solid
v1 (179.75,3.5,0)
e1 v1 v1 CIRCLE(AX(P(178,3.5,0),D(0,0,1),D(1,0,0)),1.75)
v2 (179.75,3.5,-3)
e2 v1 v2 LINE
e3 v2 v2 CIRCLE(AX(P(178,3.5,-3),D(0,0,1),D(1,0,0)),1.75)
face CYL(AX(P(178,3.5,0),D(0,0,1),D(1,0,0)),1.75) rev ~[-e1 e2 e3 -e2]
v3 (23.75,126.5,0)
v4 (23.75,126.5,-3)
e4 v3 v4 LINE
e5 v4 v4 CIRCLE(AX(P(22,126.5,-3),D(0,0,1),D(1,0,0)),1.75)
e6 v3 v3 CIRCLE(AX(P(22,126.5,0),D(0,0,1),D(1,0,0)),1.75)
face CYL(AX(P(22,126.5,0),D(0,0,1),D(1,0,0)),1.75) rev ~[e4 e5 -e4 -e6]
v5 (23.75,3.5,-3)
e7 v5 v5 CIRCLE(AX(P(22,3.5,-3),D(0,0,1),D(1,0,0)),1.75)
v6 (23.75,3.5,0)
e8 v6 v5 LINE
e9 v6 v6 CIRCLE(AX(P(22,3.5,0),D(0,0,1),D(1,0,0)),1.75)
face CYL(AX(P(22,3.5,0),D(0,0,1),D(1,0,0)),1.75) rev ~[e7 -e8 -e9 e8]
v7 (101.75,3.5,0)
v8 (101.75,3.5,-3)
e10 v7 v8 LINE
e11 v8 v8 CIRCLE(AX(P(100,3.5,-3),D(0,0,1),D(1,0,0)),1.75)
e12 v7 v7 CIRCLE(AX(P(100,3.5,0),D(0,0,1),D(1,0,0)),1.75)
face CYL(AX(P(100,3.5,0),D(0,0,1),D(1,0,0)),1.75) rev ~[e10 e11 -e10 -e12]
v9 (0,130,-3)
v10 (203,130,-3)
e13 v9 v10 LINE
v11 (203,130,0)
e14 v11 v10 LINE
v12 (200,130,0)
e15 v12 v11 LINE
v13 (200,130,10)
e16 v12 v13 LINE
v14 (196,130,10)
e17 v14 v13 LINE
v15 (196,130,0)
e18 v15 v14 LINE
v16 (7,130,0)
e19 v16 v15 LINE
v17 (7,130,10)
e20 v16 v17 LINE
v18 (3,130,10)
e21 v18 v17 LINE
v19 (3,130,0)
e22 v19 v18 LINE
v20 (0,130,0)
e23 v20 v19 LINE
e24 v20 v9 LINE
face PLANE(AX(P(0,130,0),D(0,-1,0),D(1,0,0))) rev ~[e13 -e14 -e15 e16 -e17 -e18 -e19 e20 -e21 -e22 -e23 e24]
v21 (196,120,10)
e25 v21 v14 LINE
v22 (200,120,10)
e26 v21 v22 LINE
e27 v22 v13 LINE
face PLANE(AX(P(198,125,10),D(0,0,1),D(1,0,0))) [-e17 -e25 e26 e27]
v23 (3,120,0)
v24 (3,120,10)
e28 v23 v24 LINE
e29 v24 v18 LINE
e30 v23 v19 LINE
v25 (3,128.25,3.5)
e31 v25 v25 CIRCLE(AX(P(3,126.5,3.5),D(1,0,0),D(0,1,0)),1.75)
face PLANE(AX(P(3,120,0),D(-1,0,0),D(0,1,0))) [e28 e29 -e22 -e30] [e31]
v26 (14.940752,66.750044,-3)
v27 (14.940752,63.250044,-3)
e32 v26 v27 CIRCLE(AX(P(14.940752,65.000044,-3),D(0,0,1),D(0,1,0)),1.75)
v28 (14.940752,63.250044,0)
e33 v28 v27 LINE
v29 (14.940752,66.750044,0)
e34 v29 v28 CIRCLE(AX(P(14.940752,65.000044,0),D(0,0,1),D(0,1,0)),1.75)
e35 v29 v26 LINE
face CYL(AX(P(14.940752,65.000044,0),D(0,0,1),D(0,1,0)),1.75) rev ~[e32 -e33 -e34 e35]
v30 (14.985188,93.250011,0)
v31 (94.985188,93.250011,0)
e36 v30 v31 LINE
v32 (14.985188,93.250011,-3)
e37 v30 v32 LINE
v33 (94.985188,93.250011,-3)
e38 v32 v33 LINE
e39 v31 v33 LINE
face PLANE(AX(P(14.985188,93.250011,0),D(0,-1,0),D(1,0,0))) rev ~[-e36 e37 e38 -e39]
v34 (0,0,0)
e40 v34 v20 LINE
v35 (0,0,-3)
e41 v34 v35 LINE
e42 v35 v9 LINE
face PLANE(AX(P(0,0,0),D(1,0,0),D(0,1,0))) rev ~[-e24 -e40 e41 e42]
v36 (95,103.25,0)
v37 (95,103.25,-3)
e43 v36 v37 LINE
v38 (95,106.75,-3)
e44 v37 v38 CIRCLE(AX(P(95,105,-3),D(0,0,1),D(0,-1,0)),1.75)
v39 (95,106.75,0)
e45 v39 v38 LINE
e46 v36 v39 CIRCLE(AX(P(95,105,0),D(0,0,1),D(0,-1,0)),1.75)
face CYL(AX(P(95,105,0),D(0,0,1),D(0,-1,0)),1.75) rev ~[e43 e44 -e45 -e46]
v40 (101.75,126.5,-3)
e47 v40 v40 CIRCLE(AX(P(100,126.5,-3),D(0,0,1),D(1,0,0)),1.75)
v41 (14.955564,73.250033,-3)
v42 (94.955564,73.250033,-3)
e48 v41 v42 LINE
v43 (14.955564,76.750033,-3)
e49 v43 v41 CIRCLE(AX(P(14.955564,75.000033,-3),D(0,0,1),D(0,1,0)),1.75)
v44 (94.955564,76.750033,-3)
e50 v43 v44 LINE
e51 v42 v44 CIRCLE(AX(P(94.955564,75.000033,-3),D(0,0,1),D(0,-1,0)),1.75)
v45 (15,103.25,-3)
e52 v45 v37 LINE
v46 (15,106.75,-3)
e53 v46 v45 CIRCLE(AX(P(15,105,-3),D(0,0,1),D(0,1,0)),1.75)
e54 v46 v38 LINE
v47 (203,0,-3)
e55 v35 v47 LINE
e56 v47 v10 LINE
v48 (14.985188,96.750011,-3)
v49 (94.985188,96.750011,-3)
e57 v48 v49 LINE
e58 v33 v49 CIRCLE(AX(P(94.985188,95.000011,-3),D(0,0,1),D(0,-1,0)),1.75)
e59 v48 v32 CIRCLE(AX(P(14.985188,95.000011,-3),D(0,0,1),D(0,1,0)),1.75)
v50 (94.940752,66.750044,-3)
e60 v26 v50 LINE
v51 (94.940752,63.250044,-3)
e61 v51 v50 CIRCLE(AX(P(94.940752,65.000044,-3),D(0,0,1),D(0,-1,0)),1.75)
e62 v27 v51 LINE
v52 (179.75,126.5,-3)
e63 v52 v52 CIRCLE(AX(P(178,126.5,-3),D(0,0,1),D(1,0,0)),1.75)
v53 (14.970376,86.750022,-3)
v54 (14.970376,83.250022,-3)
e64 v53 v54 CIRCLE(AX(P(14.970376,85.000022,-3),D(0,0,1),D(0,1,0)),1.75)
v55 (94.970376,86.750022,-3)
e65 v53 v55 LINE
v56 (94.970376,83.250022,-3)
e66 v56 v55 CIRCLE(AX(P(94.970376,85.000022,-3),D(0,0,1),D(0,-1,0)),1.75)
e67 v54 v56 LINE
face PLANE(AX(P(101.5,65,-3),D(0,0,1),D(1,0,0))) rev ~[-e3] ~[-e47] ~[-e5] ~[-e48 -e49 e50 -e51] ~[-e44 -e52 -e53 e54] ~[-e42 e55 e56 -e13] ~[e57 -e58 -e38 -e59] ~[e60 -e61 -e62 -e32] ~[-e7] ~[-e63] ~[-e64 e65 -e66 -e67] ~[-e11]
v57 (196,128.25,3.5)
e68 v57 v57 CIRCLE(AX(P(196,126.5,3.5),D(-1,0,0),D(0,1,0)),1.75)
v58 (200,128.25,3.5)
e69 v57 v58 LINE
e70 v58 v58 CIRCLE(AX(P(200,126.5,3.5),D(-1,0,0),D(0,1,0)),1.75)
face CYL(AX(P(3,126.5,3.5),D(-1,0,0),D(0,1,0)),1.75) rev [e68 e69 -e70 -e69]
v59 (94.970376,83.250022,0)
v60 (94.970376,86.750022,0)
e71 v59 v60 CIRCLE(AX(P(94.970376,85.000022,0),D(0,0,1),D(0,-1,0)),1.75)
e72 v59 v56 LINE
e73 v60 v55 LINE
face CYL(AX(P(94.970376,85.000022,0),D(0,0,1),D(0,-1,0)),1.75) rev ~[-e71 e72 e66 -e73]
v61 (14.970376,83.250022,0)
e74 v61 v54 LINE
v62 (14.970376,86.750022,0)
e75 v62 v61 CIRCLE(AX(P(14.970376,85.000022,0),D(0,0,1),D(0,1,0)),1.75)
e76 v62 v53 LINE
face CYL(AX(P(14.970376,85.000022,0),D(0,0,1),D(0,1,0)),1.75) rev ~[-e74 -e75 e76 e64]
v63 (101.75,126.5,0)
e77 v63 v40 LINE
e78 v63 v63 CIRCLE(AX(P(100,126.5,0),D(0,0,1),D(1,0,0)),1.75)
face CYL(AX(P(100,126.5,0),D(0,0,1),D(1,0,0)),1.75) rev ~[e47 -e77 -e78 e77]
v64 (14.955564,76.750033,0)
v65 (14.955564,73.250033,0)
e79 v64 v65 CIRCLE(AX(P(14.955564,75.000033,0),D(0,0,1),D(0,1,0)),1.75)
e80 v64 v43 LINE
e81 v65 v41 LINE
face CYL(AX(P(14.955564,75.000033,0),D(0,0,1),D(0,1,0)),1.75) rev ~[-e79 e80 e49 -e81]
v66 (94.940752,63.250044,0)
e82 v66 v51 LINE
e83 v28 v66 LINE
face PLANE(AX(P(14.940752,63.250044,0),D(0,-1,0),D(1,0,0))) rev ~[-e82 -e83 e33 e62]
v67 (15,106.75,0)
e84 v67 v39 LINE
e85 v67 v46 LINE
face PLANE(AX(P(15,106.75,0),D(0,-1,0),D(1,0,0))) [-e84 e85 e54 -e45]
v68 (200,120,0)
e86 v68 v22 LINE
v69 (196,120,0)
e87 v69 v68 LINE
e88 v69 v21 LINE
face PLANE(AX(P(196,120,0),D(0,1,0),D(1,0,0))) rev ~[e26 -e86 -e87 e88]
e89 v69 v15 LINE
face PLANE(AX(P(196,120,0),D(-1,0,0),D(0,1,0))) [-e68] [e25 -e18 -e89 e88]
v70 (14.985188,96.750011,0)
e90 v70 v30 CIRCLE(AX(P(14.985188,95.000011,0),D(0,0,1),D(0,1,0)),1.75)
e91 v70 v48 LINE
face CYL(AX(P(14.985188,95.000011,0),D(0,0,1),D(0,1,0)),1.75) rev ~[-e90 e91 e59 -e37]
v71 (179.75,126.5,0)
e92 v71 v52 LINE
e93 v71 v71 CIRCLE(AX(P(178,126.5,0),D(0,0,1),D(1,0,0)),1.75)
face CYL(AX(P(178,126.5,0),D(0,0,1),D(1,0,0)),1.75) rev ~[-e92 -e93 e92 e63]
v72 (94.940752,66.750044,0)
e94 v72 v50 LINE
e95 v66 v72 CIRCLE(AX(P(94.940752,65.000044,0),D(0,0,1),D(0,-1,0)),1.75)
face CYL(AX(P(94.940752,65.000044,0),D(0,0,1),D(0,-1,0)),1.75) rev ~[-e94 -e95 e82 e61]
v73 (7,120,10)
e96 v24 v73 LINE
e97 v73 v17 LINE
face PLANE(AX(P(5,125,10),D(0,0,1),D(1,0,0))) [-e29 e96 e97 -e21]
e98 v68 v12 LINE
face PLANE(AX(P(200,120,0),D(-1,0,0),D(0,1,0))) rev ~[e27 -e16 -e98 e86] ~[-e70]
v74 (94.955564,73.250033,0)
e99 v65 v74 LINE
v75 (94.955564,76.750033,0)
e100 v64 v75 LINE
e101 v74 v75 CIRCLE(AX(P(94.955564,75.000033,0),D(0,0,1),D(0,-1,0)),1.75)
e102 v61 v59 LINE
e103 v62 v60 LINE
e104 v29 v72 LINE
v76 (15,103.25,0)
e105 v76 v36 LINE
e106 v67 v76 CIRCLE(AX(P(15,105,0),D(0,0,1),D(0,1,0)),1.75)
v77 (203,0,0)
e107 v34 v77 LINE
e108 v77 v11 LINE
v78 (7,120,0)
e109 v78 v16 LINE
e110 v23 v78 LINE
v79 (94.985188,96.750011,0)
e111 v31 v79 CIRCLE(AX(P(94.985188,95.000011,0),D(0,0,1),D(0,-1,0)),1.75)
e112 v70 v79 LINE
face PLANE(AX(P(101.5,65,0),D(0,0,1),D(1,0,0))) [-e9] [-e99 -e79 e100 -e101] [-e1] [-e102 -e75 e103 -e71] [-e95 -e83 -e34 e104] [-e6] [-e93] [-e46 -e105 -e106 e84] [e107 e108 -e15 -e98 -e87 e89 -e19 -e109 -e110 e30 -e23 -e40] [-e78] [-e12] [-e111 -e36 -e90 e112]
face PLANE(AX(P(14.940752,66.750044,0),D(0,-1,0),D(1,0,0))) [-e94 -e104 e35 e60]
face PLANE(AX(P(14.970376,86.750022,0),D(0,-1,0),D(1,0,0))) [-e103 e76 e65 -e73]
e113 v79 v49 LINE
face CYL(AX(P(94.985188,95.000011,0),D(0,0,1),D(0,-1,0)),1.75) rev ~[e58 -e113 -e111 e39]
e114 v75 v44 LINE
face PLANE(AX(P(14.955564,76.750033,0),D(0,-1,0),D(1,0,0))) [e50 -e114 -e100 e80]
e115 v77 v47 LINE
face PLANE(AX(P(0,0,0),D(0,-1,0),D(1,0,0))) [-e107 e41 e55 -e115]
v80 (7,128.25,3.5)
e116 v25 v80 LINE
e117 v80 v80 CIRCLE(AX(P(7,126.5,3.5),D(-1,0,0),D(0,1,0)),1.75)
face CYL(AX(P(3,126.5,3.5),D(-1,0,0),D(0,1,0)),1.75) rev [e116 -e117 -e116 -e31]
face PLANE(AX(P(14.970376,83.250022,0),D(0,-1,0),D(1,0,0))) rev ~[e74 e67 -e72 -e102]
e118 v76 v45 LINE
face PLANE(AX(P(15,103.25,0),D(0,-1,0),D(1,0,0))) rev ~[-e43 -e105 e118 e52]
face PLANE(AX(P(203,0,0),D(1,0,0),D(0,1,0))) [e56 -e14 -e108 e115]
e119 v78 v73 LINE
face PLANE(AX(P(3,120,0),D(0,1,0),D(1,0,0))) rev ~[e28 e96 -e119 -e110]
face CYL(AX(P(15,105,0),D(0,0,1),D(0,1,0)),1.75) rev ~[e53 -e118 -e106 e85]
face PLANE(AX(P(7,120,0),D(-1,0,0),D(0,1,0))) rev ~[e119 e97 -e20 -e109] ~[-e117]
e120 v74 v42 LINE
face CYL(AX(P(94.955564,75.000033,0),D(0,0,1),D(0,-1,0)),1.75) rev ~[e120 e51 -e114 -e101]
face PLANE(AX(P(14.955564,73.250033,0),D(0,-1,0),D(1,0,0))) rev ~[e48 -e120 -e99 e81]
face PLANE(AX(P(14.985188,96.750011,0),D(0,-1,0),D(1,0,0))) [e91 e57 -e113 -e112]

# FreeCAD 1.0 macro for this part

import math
import FreeCAD as App
import Part
import Sketcher

V = App.Vector

doc = App.newDocument("Part")
body = doc.addObject("PartDesign::Body", "Body")

# Sketch on XY plane
sketch1 = body.newObject("Sketcher::SketchObject", "Sketch")
sketch1.AttachmentSupport = (doc.getObject("XY_Plane"), [""])
sketch1.MapMode = "FlatFace"
sketch1.addGeometry([
    Part.LineSegment(V(0, 130, 0), V(0, 0, 0)),  # 0
    Part.LineSegment(V(0, 0, 0), V(203, 0, 0)),  # 1
    Part.LineSegment(V(203, 0, 0), V(203, 130, 0)),  # 2
    Part.LineSegment(V(203, 130, 0), V(0, 130, 0)),  # 3
    Part.Circle(V(22, 3.5, 0), V(0, 0, 1), 1.75),  # 4
    Part.Circle(V(100, 3.5, 0), V(0, 0, 1), 1.75),  # 5
    Part.Circle(V(178, 3.5, 0), V(0, 0, 1), 1.75),  # 6
    Part.ArcOfCircle(Part.Circle(V(14.940752, 65.000044, 0), V(0, 0, 1), 1.75), math.radians(90), math.radians(270)),  # 7
    Part.LineSegment(V(14.940752, 66.750044, 0), V(94.940752, 66.750044, 0)),  # 8
    Part.ArcOfCircle(Part.Circle(V(94.940752, 65.000044, 0), V(0, 0, 1), 1.75), math.radians(-90), math.radians(90)),  # 9
    Part.LineSegment(V(94.940752, 63.250044, 0), V(14.940752, 63.250044, 0)),  # 10
    Part.ArcOfCircle(Part.Circle(V(14.955564, 75.000033, 0), V(0, 0, 1), 1.75), math.radians(90), math.radians(270)),  # 11
    Part.LineSegment(V(14.955564, 76.750033, 0), V(94.955564, 76.750033, 0)),  # 12
    Part.ArcOfCircle(Part.Circle(V(94.955564, 75.000033, 0), V(0, 0, 1), 1.75), math.radians(-90), math.radians(90)),  # 13
    Part.LineSegment(V(94.955564, 73.250033, 0), V(14.955564, 73.250033, 0)),  # 14
    Part.ArcOfCircle(Part.Circle(V(14.970376, 85.000022, 0), V(0, 0, 1), 1.75), math.radians(90), math.radians(270)),  # 15
    Part.LineSegment(V(14.970376, 86.750022, 0), V(94.970376, 86.750022, 0)),  # 16
    Part.ArcOfCircle(Part.Circle(V(94.970376, 85.000022, 0), V(0, 0, 1), 1.75), math.radians(-90), math.radians(90)),  # 17
    Part.LineSegment(V(94.970376, 83.250022, 0), V(14.970376, 83.250022, 0)),  # 18
    Part.ArcOfCircle(Part.Circle(V(14.985188, 95.000011, 0), V(0, 0, 1), 1.75), math.radians(90), math.radians(270)),  # 19
    Part.LineSegment(V(14.985188, 96.750011, 0), V(94.985188, 96.750011, 0)),  # 20
    Part.ArcOfCircle(Part.Circle(V(94.985188, 95.000011, 0), V(0, 0, 1), 1.75), math.radians(-90), math.radians(90)),  # 21
    Part.LineSegment(V(94.985188, 93.250011, 0), V(14.985188, 93.250011, 0)),  # 22
    Part.Circle(V(22, 126.5, 0), V(0, 0, 1), 1.75),  # 23
    Part.ArcOfCircle(Part.Circle(V(15, 105, 0), V(0, 0, 1), 1.75), math.radians(90), math.radians(270)),  # 24
    Part.LineSegment(V(15, 106.75, 0), V(95, 106.75, 0)),  # 25
    Part.ArcOfCircle(Part.Circle(V(95, 105, 0), V(0, 0, 1), 1.75), math.radians(-90), math.radians(90)),  # 26
    Part.LineSegment(V(95, 103.25, 0), V(15, 103.25, 0)),  # 27
    Part.Circle(V(100, 126.5, 0), V(0, 0, 1), 1.75),  # 28
    Part.Circle(V(178, 126.5, 0), V(0, 0, 1), 1.75),  # 29
], False)
sketch1.addConstraint([
    Sketcher.Constraint("Coincident", 0, 2, 1, 1),
    Sketcher.Constraint("Coincident", 1, 2, 2, 1),
    Sketcher.Constraint("Coincident", 2, 2, 3, 1),
    Sketcher.Constraint("Coincident", 3, 2, 0, 1),
    Sketcher.Constraint("Tangent", 7, 1, 8, 1),
    Sketcher.Constraint("Tangent", 8, 2, 9, 2),
    Sketcher.Constraint("Tangent", 9, 1, 10, 1),
    Sketcher.Constraint("Tangent", 10, 2, 7, 2),
    Sketcher.Constraint("Tangent", 11, 1, 12, 1),
    Sketcher.Constraint("Tangent", 12, 2, 13, 2),
    Sketcher.Constraint("Tangent", 13, 1, 14, 1),
    Sketcher.Constraint("Tangent", 14, 2, 11, 2),
    Sketcher.Constraint("Tangent", 15, 1, 16, 1),
    Sketcher.Constraint("Tangent", 16, 2, 17, 2),
    Sketcher.Constraint("Tangent", 17, 1, 18, 1),
    Sketcher.Constraint("Tangent", 18, 2, 15, 2),
    Sketcher.Constraint("Tangent", 19, 1, 20, 1),
    Sketcher.Constraint("Tangent", 20, 2, 21, 2),
    Sketcher.Constraint("Tangent", 21, 1, 22, 1),
    Sketcher.Constraint("Tangent", 22, 2, 19, 2),
    Sketcher.Constraint("Tangent", 24, 1, 25, 1),
    Sketcher.Constraint("Tangent", 25, 2, 26, 2),
    Sketcher.Constraint("Tangent", 26, 1, 27, 1),
    Sketcher.Constraint("Tangent", 27, 2, 24, 2),
    Sketcher.Constraint("Vertical", 0),
    Sketcher.Constraint("Horizontal", 1),
    Sketcher.Constraint("Vertical", 2),
    Sketcher.Constraint("Horizontal", 3),
    Sketcher.Constraint("Horizontal", 8),
    Sketcher.Constraint("Horizontal", 10),
    Sketcher.Constraint("Horizontal", 12),
    Sketcher.Constraint("Horizontal", 14),
    Sketcher.Constraint("Horizontal", 16),
    Sketcher.Constraint("Horizontal", 18),
    Sketcher.Constraint("Horizontal", 20),
    Sketcher.Constraint("Horizontal", 22),
    Sketcher.Constraint("Horizontal", 25),
    Sketcher.Constraint("Horizontal", 27),
    Sketcher.Constraint("Coincident", 0, 2, -1, 1),
    Sketcher.Constraint("Equal", 4, 5),
    Sketcher.Constraint("Equal", 5, 6),
    Sketcher.Constraint("Equal", 6, 7),
    Sketcher.Constraint("Equal", 9, 11),
    Sketcher.Constraint("Equal", 13, 15),
    Sketcher.Constraint("Equal", 17, 19),
    Sketcher.Constraint("Equal", 21, 23),
    Sketcher.Constraint("Equal", 23, 24),
    Sketcher.Constraint("Equal", 26, 28),
    Sketcher.Constraint("Equal", 28, 29),
    Sketcher.Constraint("Horizontal", 4, 3, 5, 3),
    Sketcher.Constraint("Horizontal", 5, 3, 6, 3),
    Sketcher.Constraint("Horizontal", 23, 3, 28, 3),
    Sketcher.Constraint("Horizontal", 28, 3, 29, 3),
    Sketcher.Constraint("Vertical", 4, 3, 23, 3),
    Sketcher.Constraint("Vertical", 5, 3, 28, 3),
    Sketcher.Constraint("Vertical", 6, 3, 29, 3),
    Sketcher.Constraint("Equal", 10, 12),
    Sketcher.Constraint("Equal", 14, 16),
    Sketcher.Constraint("Equal", 18, 20),
    Sketcher.Constraint("Equal", 22, 25),
    Sketcher.Constraint("Diameter", 4, 3.5),
    Sketcher.Constraint("DistanceX", 1, 1, 1, 2, 203.0),
    Sketcher.Constraint("DistanceX", 8, 1, 8, 2, 80.0),
    Sketcher.Constraint("DistanceY", 0, 2, 0, 1, 130.0),
    Sketcher.Constraint("DistanceX", -1, 1, 4, 3, 22.0),
    Sketcher.Constraint("DistanceX", -1, 1, 5, 3, 100.0),
    Sketcher.Constraint("DistanceX", -1, 1, 6, 3, 178.0),
    Sketcher.Constraint("DistanceX", -1, 1, 24, 3, 15.0),
    Sketcher.Constraint("DistanceY", -1, 1, 24, 3, 105.0),
    Sketcher.Constraint("DistanceY", -1, 1, 4, 3, 3.5),
    Sketcher.Constraint("DistanceY", -1, 1, 23, 3, 126.5),
    Sketcher.Constraint("DistanceY", -1, 1, 15, 3, 85.000022),
    Sketcher.Constraint("DistanceX", -1, 1, 19, 3, 14.985188),
    Sketcher.Constraint("DistanceY", -1, 1, 19, 3, 95.000011),
    Sketcher.Constraint("DistanceX", 7, 3, 4, 3, 7.059248),
    Sketcher.Constraint("DistanceY", 7, 3, 11, 3, 9.999989),
    Sketcher.Constraint("DistanceX", 11, 3, 9, 3, 79.985188),
    Sketcher.Constraint("DistanceX", 11, 3, 15, 3, 0.014812),
    Sketcher.Constraint("DistanceY", 11, 3, 15, 3, 9.999989),
])
pad1 = body.newObject("PartDesign::Pad", "Pad")
pad1.Profile = sketch1
pad1.Length = 3
pad1.Reversed = True

# Sketch on XY plane
sketch2 = body.newObject("Sketcher::SketchObject", "Sketch001")
sketch2.AttachmentSupport = (doc.getObject("XY_Plane"), [""])
sketch2.MapMode = "FlatFace"
sketch2.addGeometry([
    Part.LineSegment(V(196, 130, 0), V(196, 120, 0)),  # 0
    Part.LineSegment(V(196, 120, 0), V(200, 120, 0)),  # 1
    Part.LineSegment(V(200, 120, 0), V(200, 130, 0)),  # 2
    Part.LineSegment(V(200, 130, 0), V(196, 130, 0)),  # 3
    Part.LineSegment(V(3, 130, 0), V(3, 120, 0)),  # 4
    Part.LineSegment(V(3, 120, 0), V(7, 120, 0)),  # 5
    Part.LineSegment(V(7, 120, 0), V(7, 130, 0)),  # 6
    Part.LineSegment(V(7, 130, 0), V(3, 130, 0)),  # 7
], False)
sketch2.addConstraint([
    Sketcher.Constraint("Coincident", 0, 2, 1, 1),
    Sketcher.Constraint("Coincident", 1, 2, 2, 1),
    Sketcher.Constraint("Coincident", 2, 2, 3, 1),
    Sketcher.Constraint("Coincident", 3, 2, 0, 1),
    Sketcher.Constraint("Coincident", 4, 2, 5, 1),
    Sketcher.Constraint("Coincident", 5, 2, 6, 1),
    Sketcher.Constraint("Coincident", 6, 2, 7, 1),
    Sketcher.Constraint("Coincident", 7, 2, 4, 1),
    Sketcher.Constraint("Vertical", 0),
    Sketcher.Constraint("Horizontal", 1),
    Sketcher.Constraint("Vertical", 2),
    Sketcher.Constraint("Horizontal", 3),
    Sketcher.Constraint("Vertical", 4),
    Sketcher.Constraint("Horizontal", 5),
    Sketcher.Constraint("Vertical", 6),
    Sketcher.Constraint("Horizontal", 7),
    Sketcher.Constraint("Horizontal", 1, 2, 4, 2),
    Sketcher.Constraint("Horizontal", 3, 2, 6, 2),
    Sketcher.Constraint("Equal", 3, 5),
    Sketcher.Constraint("DistanceX", 1, 1, 1, 2, 4.0),
    Sketcher.Constraint("DistanceY", 0, 2, 0, 1, 10.0),
    Sketcher.Constraint("DistanceX", -1, 1, 0, 2, 196.0),
    Sketcher.Constraint("DistanceY", -1, 1, 0, 2, 120.0),
    Sketcher.Constraint("DistanceX", -1, 1, 4, 2, 3.0),
])
pad2 = body.newObject("PartDesign::Pad", "Pad001")
pad2.Profile = sketch2
pad2.Length = 10

# Sketch on YZ plane
sketch3 = body.newObject("Sketcher::SketchObject", "Sketch002")
sketch3.AttachmentSupport = (doc.getObject("YZ_Plane"), [""])
sketch3.MapMode = "FlatFace"
sketch3.AttachmentOffset = App.Placement(V(0, 0, 107), App.Rotation())
sketch3.addGeometry([
    Part.Circle(V(-51, 7, 0), V(0, 0, 1), 1.75),  # 0
    Part.Circle(V(61, 7, 0), V(0, 0, 1), 1.75),  # 1
    Part.LineSegment(V(-40, 13, 0), V(-40, 9, 0)),  # 2
    Part.LineSegment(V(-40, 9, 0), V(55, 9, 0)),  # 3
    Part.LineSegment(V(55, 9, 0), V(55, 13, 0)),  # 4
    Part.LineSegment(V(55, 13, 0), V(-40, 13, 0)),  # 5
], False)
sketch3.addConstraint([
    Sketcher.Constraint("Coincident", 2, 2, 3, 1),
    Sketcher.Constraint("Coincident", 3, 2, 4, 1),
    Sketcher.Constraint("Coincident", 4, 2, 5, 1),
    Sketcher.Constraint("Coincident", 5, 2, 2, 1),
    Sketcher.Constraint("Vertical", 2),
    Sketcher.Constraint("Horizontal", 3),
    Sketcher.Constraint("Vertical", 4),
    Sketcher.Constraint("Horizontal", 5),
    Sketcher.Constraint("Equal", 0, 1),
    Sketcher.Constraint("Horizontal", 0, 3, 1, 3),
    Sketcher.Constraint("Diameter", 0, 3.5),
    Sketcher.Constraint("DistanceX", 3, 1, 3, 2, 95.0),
    Sketcher.Constraint("DistanceY", 2, 2, 2, 1, 4.0),
    Sketcher.Constraint("DistanceX", 0, 3, -1, 1, 51.0),
    Sketcher.Constraint("DistanceY", -1, 1, 0, 3, 7.0),
    Sketcher.Constraint("DistanceX", -1, 1, 1, 3, 61.0),
    Sketcher.Constraint("DistanceX", 2, 2, -1, 1, 40.0),
    Sketcher.Constraint("DistanceY", -1, 1, 2, 2, 9.0),
])
pocket1 = body.newObject("PartDesign::Pocket", "Pocket")
pocket1.Profile = sketch3
pocket1.Length = 225

# Sketch on YZ plane
sketch4 = body.newObject("Sketcher::SketchObject", "Sketch003")
sketch4.AttachmentSupport = (doc.getObject("YZ_Plane"), [""])
sketch4.MapMode = "FlatFace"
sketch4.AttachmentOffset = App.Placement(V(0, 0, 3), App.Rotation())
sketch4.addGeometry(Part.Circle(V(126.5, 3.5, 0), V(0, 0, 1), 1.75), False)
sketch4.addConstraint([
    Sketcher.Constraint("Diameter", 0, 3.5),
    Sketcher.Constraint("DistanceX", -1, 1, 0, 3, 126.5),
    Sketcher.Constraint("DistanceY", -1, 1, 0, 3, 3.5),
])
pocket2 = body.newObject("PartDesign::Pocket", "Pocket001")
pocket2.Profile = sketch4
pocket2.Type = "ThroughAll"
pocket2.Reversed = True

doc.recompute()
